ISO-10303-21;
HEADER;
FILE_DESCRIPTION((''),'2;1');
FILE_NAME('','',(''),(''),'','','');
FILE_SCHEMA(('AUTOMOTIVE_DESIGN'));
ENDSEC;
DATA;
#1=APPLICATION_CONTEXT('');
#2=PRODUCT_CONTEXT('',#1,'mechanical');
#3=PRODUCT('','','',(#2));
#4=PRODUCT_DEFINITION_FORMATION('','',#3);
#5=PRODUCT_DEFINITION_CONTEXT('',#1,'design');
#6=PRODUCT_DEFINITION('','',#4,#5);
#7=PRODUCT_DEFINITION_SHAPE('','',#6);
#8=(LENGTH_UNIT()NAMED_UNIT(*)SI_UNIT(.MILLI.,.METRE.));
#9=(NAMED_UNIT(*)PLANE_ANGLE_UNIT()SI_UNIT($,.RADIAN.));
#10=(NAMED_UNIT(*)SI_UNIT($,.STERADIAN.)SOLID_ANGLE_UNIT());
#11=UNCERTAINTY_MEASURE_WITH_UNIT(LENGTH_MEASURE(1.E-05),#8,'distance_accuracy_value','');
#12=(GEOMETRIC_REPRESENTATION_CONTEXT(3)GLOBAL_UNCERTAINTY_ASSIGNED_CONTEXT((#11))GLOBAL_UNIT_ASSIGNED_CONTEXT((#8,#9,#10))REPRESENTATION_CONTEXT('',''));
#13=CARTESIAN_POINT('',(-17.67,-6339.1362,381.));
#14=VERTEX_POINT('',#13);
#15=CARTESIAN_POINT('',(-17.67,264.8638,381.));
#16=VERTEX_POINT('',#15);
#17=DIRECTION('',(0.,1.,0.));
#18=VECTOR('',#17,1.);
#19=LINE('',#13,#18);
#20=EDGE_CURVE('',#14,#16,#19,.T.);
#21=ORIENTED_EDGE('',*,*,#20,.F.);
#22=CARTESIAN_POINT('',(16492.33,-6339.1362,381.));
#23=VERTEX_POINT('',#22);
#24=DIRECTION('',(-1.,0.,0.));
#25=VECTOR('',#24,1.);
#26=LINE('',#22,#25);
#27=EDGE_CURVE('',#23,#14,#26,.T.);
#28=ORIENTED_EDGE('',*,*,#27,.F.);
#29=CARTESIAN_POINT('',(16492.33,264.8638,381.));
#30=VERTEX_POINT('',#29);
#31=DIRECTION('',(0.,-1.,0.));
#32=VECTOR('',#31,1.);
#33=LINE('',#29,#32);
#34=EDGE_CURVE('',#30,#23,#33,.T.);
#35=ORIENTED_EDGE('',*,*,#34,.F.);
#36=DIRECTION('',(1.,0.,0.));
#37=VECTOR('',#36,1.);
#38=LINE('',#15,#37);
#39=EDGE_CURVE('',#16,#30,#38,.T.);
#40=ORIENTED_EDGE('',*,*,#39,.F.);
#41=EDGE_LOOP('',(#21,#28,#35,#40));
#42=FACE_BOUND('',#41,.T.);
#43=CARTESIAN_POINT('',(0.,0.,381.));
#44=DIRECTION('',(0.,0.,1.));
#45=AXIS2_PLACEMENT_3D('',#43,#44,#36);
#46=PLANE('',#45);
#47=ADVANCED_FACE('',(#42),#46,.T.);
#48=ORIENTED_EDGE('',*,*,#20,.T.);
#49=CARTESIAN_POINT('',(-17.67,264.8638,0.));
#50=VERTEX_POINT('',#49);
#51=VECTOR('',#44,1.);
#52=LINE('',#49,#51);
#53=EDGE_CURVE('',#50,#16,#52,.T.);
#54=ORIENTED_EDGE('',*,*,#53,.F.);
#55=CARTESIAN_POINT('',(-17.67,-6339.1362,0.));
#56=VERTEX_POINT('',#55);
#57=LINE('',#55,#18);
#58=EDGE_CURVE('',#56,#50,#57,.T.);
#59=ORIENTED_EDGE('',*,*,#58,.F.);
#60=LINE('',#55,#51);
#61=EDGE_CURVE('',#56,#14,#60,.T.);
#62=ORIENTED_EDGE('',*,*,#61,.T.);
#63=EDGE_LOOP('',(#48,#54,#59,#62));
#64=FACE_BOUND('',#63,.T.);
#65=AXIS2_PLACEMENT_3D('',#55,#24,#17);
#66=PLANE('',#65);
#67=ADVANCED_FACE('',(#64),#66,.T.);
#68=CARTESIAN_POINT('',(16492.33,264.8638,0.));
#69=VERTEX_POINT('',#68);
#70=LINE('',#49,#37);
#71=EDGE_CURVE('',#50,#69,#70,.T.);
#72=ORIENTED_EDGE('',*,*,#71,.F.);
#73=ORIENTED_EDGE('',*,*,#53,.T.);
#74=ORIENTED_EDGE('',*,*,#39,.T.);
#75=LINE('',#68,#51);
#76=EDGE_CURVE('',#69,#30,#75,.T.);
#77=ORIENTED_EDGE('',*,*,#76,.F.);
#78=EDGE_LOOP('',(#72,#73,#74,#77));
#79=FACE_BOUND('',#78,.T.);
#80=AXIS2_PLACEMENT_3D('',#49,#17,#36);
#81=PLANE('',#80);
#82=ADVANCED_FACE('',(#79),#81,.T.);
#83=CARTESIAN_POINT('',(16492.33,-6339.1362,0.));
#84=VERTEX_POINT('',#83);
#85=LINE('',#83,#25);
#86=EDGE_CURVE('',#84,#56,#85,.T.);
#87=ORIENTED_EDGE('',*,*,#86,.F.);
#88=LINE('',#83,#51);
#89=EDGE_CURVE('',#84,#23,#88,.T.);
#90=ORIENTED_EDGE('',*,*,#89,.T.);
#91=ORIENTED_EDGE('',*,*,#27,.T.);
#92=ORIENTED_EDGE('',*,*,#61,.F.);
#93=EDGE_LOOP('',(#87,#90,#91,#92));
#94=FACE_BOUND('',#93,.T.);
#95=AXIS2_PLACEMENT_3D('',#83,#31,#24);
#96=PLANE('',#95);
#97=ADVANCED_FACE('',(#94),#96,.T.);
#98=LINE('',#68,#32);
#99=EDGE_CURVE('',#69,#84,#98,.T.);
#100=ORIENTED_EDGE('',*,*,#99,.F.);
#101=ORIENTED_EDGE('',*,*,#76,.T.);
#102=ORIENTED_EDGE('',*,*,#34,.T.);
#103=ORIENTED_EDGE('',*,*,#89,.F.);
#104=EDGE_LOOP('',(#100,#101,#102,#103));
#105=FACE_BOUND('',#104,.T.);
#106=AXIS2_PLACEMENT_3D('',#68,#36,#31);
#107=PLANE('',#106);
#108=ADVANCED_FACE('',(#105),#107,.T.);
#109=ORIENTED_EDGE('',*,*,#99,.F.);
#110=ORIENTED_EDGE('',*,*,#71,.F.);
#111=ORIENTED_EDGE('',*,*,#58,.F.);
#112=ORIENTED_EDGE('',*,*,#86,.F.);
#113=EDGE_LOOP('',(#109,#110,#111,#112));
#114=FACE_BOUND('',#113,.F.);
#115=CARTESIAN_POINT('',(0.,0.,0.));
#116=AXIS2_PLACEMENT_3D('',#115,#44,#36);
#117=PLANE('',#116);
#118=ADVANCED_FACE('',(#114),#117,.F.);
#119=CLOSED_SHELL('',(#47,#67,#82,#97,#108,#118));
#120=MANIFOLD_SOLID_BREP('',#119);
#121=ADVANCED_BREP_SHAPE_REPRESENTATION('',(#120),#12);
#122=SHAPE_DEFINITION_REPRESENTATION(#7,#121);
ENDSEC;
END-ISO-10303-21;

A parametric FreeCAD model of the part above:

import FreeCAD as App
import Part
import Sketcher
from FreeCAD import Vector
Q = App.Units.Quantity

doc = App.newDocument("Part")
body = doc.addObject("PartDesign::Body", "Body")

sketch1 = body.newObject("Sketcher::SketchObject", "Sketch")
sketch1.AttachmentSupport = (doc.getObject("XY_Plane"), [""])
sketch1.MapMode = "FlatFace"
sketch1.addGeometry([
    Part.LineSegment(Vector(16492.33, 264.8638, 0), Vector(-17.67, 264.8638, 0)),
    Part.LineSegment(Vector(-17.67, 264.8638, 0), Vector(-17.67, -6339.1362, 0)),
    Part.LineSegment(Vector(-17.67, -6339.1362, 0), Vector(16492.33, -6339.1362, 0)),
    Part.LineSegment(Vector(16492.33, -6339.1362, 0), Vector(16492.33, 264.8638, 0)),
], False)
sketch1.addConstraint([
    Sketcher.Constraint("Coincident", 0, 2, 1, 1),
    Sketcher.Constraint("Coincident", 1, 2, 2, 1),
    Sketcher.Constraint("Coincident", 2, 2, 3, 1),
    Sketcher.Constraint("Coincident", 3, 2, 0, 1),
    Sketcher.Constraint("Horizontal", 0),
    Sketcher.Constraint("Vertical", 1),
    Sketcher.Constraint("Horizontal", 2),
    Sketcher.Constraint("Vertical", 3),
    Sketcher.Constraint("DistanceX", 0, 2, 0, 1, Q("650 in")),
    Sketcher.Constraint("DistanceY", 1, 2, 1, 1, Q("260 in")),
    Sketcher.Constraint("DistanceY", -1, 1, 0, 2, Q("10.4277 in")),
    Sketcher.Constraint("DistanceX", 0, 2, -1, 1, Q("17.67 mm")),
])
pad1 = body.newObject("PartDesign::Pad", "Pad")
pad1.Profile = sketch1
pad1.Length = Q("15 in")

doc.recompute()
